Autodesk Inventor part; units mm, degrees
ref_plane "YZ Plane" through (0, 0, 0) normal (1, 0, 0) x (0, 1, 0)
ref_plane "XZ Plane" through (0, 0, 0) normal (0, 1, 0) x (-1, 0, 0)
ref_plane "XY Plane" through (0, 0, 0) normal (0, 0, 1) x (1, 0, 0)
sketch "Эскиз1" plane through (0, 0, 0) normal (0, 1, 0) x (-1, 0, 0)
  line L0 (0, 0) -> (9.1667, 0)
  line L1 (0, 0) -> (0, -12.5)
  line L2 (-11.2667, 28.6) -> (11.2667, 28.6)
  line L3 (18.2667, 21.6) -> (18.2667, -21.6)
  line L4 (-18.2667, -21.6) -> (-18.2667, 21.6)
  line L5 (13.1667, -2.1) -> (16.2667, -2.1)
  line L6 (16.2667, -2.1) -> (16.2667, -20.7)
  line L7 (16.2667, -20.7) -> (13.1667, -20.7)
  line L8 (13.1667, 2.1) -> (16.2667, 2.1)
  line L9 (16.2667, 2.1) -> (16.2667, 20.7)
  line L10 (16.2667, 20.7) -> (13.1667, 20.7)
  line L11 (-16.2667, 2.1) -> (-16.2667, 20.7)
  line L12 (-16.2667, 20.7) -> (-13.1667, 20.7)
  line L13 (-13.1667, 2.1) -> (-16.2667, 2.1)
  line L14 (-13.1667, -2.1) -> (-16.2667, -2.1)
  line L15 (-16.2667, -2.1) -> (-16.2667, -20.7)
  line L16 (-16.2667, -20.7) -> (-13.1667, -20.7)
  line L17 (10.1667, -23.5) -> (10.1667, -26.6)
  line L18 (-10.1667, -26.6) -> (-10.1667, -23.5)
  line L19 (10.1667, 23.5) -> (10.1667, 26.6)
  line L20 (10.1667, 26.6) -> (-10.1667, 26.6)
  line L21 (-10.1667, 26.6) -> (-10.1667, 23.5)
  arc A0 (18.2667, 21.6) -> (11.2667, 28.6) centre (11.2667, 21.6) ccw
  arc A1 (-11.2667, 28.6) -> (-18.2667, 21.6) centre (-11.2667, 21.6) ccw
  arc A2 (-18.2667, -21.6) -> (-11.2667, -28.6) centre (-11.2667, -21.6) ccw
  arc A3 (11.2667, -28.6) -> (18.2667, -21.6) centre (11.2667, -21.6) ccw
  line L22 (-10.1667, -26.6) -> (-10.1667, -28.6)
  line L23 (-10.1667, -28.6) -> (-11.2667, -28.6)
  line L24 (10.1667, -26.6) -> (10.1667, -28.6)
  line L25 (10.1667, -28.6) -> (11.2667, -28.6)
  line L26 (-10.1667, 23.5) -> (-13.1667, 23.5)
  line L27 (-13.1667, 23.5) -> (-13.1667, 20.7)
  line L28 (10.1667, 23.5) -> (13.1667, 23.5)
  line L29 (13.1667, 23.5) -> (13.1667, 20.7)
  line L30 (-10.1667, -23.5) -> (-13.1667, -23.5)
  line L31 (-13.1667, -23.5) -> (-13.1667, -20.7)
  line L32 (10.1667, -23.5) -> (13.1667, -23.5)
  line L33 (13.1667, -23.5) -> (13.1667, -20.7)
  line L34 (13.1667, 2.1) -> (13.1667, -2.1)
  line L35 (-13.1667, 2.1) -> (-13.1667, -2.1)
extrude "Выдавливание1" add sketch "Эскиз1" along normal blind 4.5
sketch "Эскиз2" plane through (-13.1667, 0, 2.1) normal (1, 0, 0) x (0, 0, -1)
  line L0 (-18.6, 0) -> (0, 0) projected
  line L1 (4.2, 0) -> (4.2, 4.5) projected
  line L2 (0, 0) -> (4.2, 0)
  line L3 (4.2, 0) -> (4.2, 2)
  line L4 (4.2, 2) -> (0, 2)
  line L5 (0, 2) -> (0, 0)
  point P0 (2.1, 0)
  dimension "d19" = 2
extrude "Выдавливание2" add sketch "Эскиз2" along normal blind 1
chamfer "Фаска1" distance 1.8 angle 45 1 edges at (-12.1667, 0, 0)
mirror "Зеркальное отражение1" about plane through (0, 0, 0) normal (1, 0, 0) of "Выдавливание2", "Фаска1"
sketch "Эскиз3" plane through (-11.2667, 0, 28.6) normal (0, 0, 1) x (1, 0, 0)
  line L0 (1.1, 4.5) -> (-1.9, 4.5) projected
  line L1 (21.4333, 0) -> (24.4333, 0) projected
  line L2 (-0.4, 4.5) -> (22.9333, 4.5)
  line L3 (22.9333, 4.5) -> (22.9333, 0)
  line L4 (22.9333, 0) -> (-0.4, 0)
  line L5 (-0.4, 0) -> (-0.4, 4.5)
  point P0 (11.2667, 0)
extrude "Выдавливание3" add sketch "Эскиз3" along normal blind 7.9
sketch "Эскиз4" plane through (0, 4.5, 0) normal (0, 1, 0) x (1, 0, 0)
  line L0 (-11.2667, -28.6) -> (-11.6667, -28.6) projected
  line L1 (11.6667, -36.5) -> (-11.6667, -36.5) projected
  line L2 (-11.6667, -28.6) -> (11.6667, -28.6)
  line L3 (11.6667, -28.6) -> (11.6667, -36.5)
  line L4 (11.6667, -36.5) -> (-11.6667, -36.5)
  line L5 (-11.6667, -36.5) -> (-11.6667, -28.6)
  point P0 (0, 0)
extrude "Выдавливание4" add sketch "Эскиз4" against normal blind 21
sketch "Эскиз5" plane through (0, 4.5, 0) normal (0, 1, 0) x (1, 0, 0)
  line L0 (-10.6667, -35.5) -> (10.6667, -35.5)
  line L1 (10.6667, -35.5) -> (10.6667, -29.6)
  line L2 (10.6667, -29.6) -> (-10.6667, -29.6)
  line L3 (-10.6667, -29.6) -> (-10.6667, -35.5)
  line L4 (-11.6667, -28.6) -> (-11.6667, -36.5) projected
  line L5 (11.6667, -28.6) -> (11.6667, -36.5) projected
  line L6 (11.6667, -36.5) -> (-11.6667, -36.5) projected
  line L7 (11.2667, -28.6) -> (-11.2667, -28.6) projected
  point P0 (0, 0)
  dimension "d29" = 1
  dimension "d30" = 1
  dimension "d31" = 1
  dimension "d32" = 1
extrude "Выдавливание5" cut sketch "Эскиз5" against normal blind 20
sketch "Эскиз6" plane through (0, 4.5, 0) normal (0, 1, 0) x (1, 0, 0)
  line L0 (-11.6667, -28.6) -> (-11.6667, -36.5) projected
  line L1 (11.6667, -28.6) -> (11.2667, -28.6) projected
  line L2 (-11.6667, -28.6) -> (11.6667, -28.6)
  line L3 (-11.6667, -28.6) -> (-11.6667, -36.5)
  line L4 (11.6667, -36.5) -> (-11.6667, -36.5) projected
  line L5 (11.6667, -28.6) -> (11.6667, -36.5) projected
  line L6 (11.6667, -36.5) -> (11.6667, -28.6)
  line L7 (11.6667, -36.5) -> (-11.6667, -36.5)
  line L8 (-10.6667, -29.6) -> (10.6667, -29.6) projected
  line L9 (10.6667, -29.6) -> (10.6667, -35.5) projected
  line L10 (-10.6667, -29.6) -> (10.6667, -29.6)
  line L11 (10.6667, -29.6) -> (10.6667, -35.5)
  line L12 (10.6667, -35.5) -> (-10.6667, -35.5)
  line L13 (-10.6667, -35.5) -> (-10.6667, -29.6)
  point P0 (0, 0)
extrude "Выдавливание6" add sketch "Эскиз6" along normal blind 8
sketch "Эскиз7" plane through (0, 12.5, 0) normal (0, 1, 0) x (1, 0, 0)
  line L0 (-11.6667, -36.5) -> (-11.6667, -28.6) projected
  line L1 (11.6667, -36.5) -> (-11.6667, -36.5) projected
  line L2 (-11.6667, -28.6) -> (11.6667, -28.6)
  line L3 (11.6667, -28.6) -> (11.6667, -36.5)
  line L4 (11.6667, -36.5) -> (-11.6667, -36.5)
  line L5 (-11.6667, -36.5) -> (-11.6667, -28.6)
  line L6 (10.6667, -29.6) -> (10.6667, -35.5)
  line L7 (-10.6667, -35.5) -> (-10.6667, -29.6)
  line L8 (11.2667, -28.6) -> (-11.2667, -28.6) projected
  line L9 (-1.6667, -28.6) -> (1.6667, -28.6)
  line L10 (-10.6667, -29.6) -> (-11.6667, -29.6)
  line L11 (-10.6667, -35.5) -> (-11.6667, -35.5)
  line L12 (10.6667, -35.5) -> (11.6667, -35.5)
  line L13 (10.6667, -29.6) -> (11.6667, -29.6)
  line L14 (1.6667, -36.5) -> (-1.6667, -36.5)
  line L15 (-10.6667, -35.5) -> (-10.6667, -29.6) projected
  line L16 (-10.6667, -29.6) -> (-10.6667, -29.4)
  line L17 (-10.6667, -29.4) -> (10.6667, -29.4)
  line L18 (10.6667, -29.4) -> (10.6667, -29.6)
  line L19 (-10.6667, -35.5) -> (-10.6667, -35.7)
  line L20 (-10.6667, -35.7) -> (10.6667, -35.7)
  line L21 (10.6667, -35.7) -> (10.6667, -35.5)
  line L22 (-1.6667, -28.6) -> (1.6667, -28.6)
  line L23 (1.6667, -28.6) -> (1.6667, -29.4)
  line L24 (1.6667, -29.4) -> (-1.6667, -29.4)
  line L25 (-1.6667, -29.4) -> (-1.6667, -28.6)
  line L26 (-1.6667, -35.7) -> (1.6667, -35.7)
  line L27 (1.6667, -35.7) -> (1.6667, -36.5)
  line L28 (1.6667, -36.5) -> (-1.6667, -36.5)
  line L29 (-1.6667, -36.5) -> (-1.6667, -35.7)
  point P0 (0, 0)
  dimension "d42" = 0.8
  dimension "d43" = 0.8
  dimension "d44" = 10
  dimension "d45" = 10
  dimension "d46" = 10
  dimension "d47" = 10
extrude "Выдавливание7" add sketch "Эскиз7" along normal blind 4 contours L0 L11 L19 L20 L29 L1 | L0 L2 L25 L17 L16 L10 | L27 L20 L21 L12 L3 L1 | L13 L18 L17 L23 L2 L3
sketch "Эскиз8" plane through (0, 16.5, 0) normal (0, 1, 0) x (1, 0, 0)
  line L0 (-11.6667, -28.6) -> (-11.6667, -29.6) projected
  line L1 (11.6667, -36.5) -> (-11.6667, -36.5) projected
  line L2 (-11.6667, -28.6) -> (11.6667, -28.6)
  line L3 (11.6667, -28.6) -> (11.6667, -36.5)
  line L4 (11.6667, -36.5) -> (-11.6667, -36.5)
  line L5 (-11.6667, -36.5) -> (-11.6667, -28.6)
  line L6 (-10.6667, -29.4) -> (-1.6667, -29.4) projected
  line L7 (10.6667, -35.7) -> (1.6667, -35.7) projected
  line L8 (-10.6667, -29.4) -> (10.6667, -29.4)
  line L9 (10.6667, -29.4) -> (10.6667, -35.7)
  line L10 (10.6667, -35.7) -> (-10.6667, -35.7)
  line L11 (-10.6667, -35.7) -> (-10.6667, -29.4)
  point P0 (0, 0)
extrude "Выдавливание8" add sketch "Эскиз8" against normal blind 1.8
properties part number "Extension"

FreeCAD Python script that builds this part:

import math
import FreeCAD as App
import Part
import Sketcher

V = App.Vector


def edges_at(feature, points):
    """Names of the edges that pass closest to the given points."""
    edges = feature.Shape.Edges
    near = lambda p: min(range(len(edges)), key=lambda i: edges[i].distToShape(Part.Vertex(*p))[0])
    return sorted({f"Edge{near(p) + 1}" for p in points})

doc = App.newDocument("Part")
body = doc.addObject("PartDesign::Body", "Body")

# Sketch on XZ plane
sketch1 = doc.addObject("Sketcher::SketchObject", "Sketch")
body.addObject(sketch1)
sketch1.AttachmentSupport = (doc.XZ_Plane, [""])
sketch1.MapMode = "FlatFace"
sketch1.addGeometry([
    Part.LineSegment(V(-11.2667, 28.6, 0), V(11.2667, 28.6, 0)),  # 0
    Part.ArcOfCircle(Part.Circle(V(11.2667, 21.6, 0), V(0, 0, 1), 7), math.radians(0), math.radians(90)),  # 1
    Part.LineSegment(V(18.2667, 21.6, 0), V(18.2667, -21.6, 0)),  # 2
    Part.ArcOfCircle(Part.Circle(V(11.2667, -21.6, 0), V(0, 0, 1), 7), math.radians(-90), math.radians(0)),  # 3
    Part.LineSegment(V(11.2667, -28.6, 0), V(10.1667, -28.6, 0)),  # 4
    Part.LineSegment(V(10.1667, -28.6, 0), V(10.1667, -23.5, 0)),  # 5
    Part.LineSegment(V(10.1667, -23.5, 0), V(13.1667, -23.5, 0)),  # 6
    Part.LineSegment(V(13.1667, -23.5, 0), V(13.1667, -20.7, 0)),  # 7
    Part.LineSegment(V(13.1667, -20.7, 0), V(16.2667, -20.7, 0)),  # 8
    Part.LineSegment(V(16.2667, -20.7, 0), V(16.2667, -2.1, 0)),  # 9
    Part.LineSegment(V(16.2667, -2.1, 0), V(13.1667, -2.1, 0)),  # 10
    Part.LineSegment(V(13.1667, -2.1, 0), V(13.1667, 2.1, 0)),  # 11
    Part.LineSegment(V(13.1667, 2.1, 0), V(16.2667, 2.1, 0)),  # 12
    Part.LineSegment(V(16.2667, 2.1, 0), V(16.2667, 20.7, 0)),  # 13
    Part.LineSegment(V(16.2667, 20.7, 0), V(13.1667, 20.7, 0)),  # 14
    Part.LineSegment(V(13.1667, 20.7, 0), V(13.1667, 23.5, 0)),  # 15
    Part.LineSegment(V(13.1667, 23.5, 0), V(10.1667, 23.5, 0)),  # 16
    Part.LineSegment(V(10.1667, 23.5, 0), V(10.1667, 26.6, 0)),  # 17
    Part.LineSegment(V(10.1667, 26.6, 0), V(-10.1667, 26.6, 0)),  # 18
    Part.LineSegment(V(-10.1667, 26.6, 0), V(-10.1667, 23.5, 0)),  # 19
    Part.LineSegment(V(-10.1667, 23.5, 0), V(-13.1667, 23.5, 0)),  # 20
    Part.LineSegment(V(-13.1667, 23.5, 0), V(-13.1667, 20.7, 0)),  # 21
    Part.LineSegment(V(-13.1667, 20.7, 0), V(-16.2667, 20.7, 0)),  # 22
    Part.LineSegment(V(-16.2667, 20.7, 0), V(-16.2667, 2.1, 0)),  # 23
    Part.LineSegment(V(-16.2667, 2.1, 0), V(-13.1667, 2.1, 0)),  # 24
    Part.LineSegment(V(-13.1667, 2.1, 0), V(-13.1667, -2.1, 0)),  # 25
    Part.LineSegment(V(-13.1667, -2.1, 0), V(-16.2667, -2.1, 0)),  # 26
    Part.LineSegment(V(-16.2667, -2.1, 0), V(-16.2667, -20.7, 0)),  # 27
    Part.LineSegment(V(-16.2667, -20.7, 0), V(-13.1667, -20.7, 0)),  # 28
    Part.LineSegment(V(-13.1667, -20.7, 0), V(-13.1667, -23.5, 0)),  # 29
    Part.LineSegment(V(-13.1667, -23.5, 0), V(-10.1667, -23.5, 0)),  # 30
    Part.LineSegment(V(-10.1667, -23.5, 0), V(-10.1667, -28.6, 0)),  # 31
    Part.LineSegment(V(-10.1667, -28.6, 0), V(-11.2667, -28.6, 0)),  # 32
    Part.ArcOfCircle(Part.Circle(V(-11.2667, -21.6, 0), V(0, 0, 1), 7), math.radians(180), math.radians(270)),  # 33
    Part.LineSegment(V(-18.2667, -21.6, 0), V(-18.2667, 21.6, 0)),  # 34
    Part.ArcOfCircle(Part.Circle(V(-11.2667, 21.6, 0), V(0, 0, 1), 7), math.radians(90), math.radians(180)),  # 35
], False)
sketch1.addConstraint([
    Sketcher.Constraint("Tangent", 0, 2, 1, 2),
    Sketcher.Constraint("Tangent", 1, 1, 2, 1),
    Sketcher.Constraint("Tangent", 2, 2, 3, 2),
    Sketcher.Constraint("Tangent", 3, 1, 4, 1),
    Sketcher.Constraint("Coincident", 4, 2, 5, 1),
    Sketcher.Constraint("Coincident", 5, 2, 6, 1),
    Sketcher.Constraint("Coincident", 6, 2, 7, 1),
    Sketcher.Constraint("Coincident", 7, 2, 8, 1),
    Sketcher.Constraint("Coincident", 8, 2, 9, 1),
    Sketcher.Constraint("Coincident", 9, 2, 10, 1),
    Sketcher.Constraint("Coincident", 10, 2, 11, 1),
    Sketcher.Constraint("Coincident", 11, 2, 12, 1),
    Sketcher.Constraint("Coincident", 12, 2, 13, 1),
    Sketcher.Constraint("Coincident", 13, 2, 14, 1),
    Sketcher.Constraint("Coincident", 14, 2, 15, 1),
    Sketcher.Constraint("Coincident", 15, 2, 16, 1),
    Sketcher.Constraint("Coincident", 16, 2, 17, 1),
    Sketcher.Constraint("Coincident", 17, 2, 18, 1),
    Sketcher.Constraint("Coincident", 18, 2, 19, 1),
    Sketcher.Constraint("Coincident", 19, 2, 20, 1),
    Sketcher.Constraint("Coincident", 20, 2, 21, 1),
    Sketcher.Constraint("Coincident", 21, 2, 22, 1),
    Sketcher.Constraint("Coincident", 22, 2, 23, 1),
    Sketcher.Constraint("Coincident", 23, 2, 24, 1),
    Sketcher.Constraint("Coincident", 24, 2, 25, 1),
    Sketcher.Constraint("Coincident", 25, 2, 26, 1),
    Sketcher.Constraint("Coincident", 26, 2, 27, 1),
    Sketcher.Constraint("Coincident", 27, 2, 28, 1),
    Sketcher.Constraint("Coincident", 28, 2, 29, 1),
    Sketcher.Constraint("Coincident", 29, 2, 30, 1),
    Sketcher.Constraint("Coincident", 30, 2, 31, 1),
    Sketcher.Constraint("Coincident", 31, 2, 32, 1),
    Sketcher.Constraint("Tangent", 32, 2, 33, 2),
    Sketcher.Constraint("Tangent", 33, 1, 34, 1),
    Sketcher.Constraint("Tangent", 34, 2, 35, 2),
    Sketcher.Constraint("Tangent", 35, 1, 0, 1),
    Sketcher.Constraint("Horizontal", 0),
    Sketcher.Constraint("Vertical", 2),
    Sketcher.Constraint("Horizontal", 4),
    Sketcher.Constraint("Vertical", 5),
    Sketcher.Constraint("Horizontal", 6),
    Sketcher.Constraint("Vertical", 7),
    Sketcher.Constraint("Horizontal", 8),
    Sketcher.Constraint("Vertical", 9),
    Sketcher.Constraint("Horizontal", 10),
    Sketcher.Constraint("Vertical", 11),
    Sketcher.Constraint("Horizontal", 12),
    Sketcher.Constraint("Vertical", 13),
    Sketcher.Constraint("Horizontal", 14),
    Sketcher.Constraint("Vertical", 15),
    Sketcher.Constraint("Horizontal", 16),
    Sketcher.Constraint("Vertical", 17),
    Sketcher.Constraint("Horizontal", 18),
    Sketcher.Constraint("Vertical", 19),
    Sketcher.Constraint("Horizontal", 20),
    Sketcher.Constraint("Vertical", 21),
    Sketcher.Constraint("Horizontal", 22),
    Sketcher.Constraint("Vertical", 23),
    Sketcher.Constraint("Horizontal", 24),
    Sketcher.Constraint("Vertical", 25),
    Sketcher.Constraint("Horizontal", 26),
    Sketcher.Constraint("Vertical", 27),
    Sketcher.Constraint("Horizontal", 28),
    Sketcher.Constraint("Vertical", 29),
    Sketcher.Constraint("Horizontal", 30),
    Sketcher.Constraint("Vertical", 31),
    Sketcher.Constraint("Horizontal", 32),
    Sketcher.Constraint("Vertical", 34),
    Sketcher.Constraint("Equal", 1, 3),
    Sketcher.Constraint("Equal", 3, 33),
    Sketcher.Constraint("Equal", 33, 35),
    Sketcher.Constraint("Symmetric", 1, 3, 33, 3, -1, 1),
    Sketcher.Constraint("Symmetric", 5, 2, 19, 2, -1, 1),
    Sketcher.Constraint("Symmetric", 7, 2, 21, 2, -1, 1),
    Sketcher.Constraint("Symmetric", 9, 2, 23, 2, -1, 1),
    Sketcher.Constraint("Symmetric", 11, 2, 25, 2, -1, 1),
    Sketcher.Constraint("Symmetric", 13, 2, 27, 2, -1, 1),
    Sketcher.Constraint("Symmetric", 15, 2, 29, 2, -1, 1),
    Sketcher.Constraint("Symmetric", 16, 2, 19, 2, -2),
    Sketcher.Constraint("Symmetric", 14, 2, 21, 2, -2),
    Sketcher.Constraint("Symmetric", 12, 2, 23, 2, -2),
    Sketcher.Constraint("Symmetric", 4, 2, 31, 2, -2),
    Sketcher.Constraint("Vertical", 7, 2, 10, 2),
    Sketcher.Constraint("Equal", 28, 17),
    Sketcher.Constraint("Radius", 1, 7.0),
    Sketcher.Constraint("DistanceX", 6, 1, 6, 2, 3.0),
    Sketcher.Constraint("DistanceX", 4, 2, 4, 1, 1.1),
    Sketcher.Constraint("DistanceX", 8, 1, 8, 2, 3.1),
    Sketcher.Constraint("DistanceY", 2, 2, 2, 1, 43.2),
    Sketcher.Constraint("DistanceY", 5, 1, 5, 2, 5.1),
    Sketcher.Constraint("DistanceY", 7, 1, 7, 2, 2.8),
    Sketcher.Constraint("DistanceY", 9, 1, 9, 2, 18.6),
    Sketcher.Constraint("DistanceX", 0, 1, 0, 2, 22.5334),
])
pad1 = doc.addObject("PartDesign::Pad", "Pad")
body.addObject(pad1)
pad1.Profile = sketch1
pad1.Length = 4.5
pad1.Reversed = True

# Sketch on YZ plane
sketch2 = doc.addObject("Sketcher::SketchObject", "Sketch001")
body.addObject(sketch2)
sketch2.AttachmentSupport = (doc.YZ_Plane, [""])
sketch2.MapMode = "FlatFace"
sketch2.AttachmentOffset = App.Placement(V(0, 0, -13.1667), App.Rotation())
sketch2.addGeometry([
    Part.LineSegment(V(0, 2.1, 0), V(0, -2.1, 0)),
    Part.LineSegment(V(0, -2.1, 0), V(2, -2.1, 0)),
    Part.LineSegment(V(2, -2.1, 0), V(2, 2.1, 0)),
    Part.LineSegment(V(2, 2.1, 0), V(0, 2.1, 0)),
], False)
sketch2.addConstraint([
    Sketcher.Constraint("Coincident", 0, 2, 1, 1),
    Sketcher.Constraint("Coincident", 1, 2, 2, 1),
    Sketcher.Constraint("Coincident", 2, 2, 3, 1),
    Sketcher.Constraint("Coincident", 3, 2, 0, 1),
    Sketcher.Constraint("Vertical", 0),
    Sketcher.Constraint("Horizontal", 1),
    Sketcher.Constraint("Vertical", 2),
    Sketcher.Constraint("Horizontal", 3),
    Sketcher.Constraint("Symmetric", 0, 2, 3, 2, -1, 1),
    Sketcher.Constraint("DistanceX", 1, 1, 1, 2, 2.0),
    Sketcher.Constraint("DistanceY", 0, 2, 0, 1, 4.2),
])
pad2 = doc.addObject("PartDesign::Pad", "Pad001")
body.addObject(pad2)
pad2.Profile = sketch2
pad2.Length = 1
doc.recompute()

chamfer = doc.addObject("PartDesign::Chamfer", "Chamfer")
body.addObject(chamfer)
chamfer.Base = (pad2, edges_at(pad2, [(-12.167, 0, 0)]))
chamfer.Size = 1.8
doc.recompute()

mirrored = doc.addObject("PartDesign::Mirrored", "Mirrored")
body.addObject(mirrored)
mirrored.Originals = [pad2, chamfer]
mirrored.MirrorPlane = (doc.YZ_Plane, [""])
body.Tip = mirrored

# Sketch on XY plane
sketch3 = doc.addObject("Sketcher::SketchObject", "Sketch002")
body.addObject(sketch3)
sketch3.AttachmentSupport = (doc.XY_Plane, [""])
sketch3.MapMode = "FlatFace"
sketch3.AttachmentOffset = App.Placement(V(0, 0, 28.6), App.Rotation())
sketch3.addGeometry([
    Part.LineSegment(V(11.6666, 4.5, 0), V(-11.6667, 4.5, 0)),
    Part.LineSegment(V(-11.6667, 4.5, 0), V(-11.6667, 0, 0)),
    Part.LineSegment(V(-11.6667, 0, 0), V(11.6666, 0, 0)),
    Part.LineSegment(V(11.6666, 0, 0), V(11.6666, 4.5, 0)),
], False)
sketch3.addConstraint([
    Sketcher.Constraint("Coincident", 0, 2, 1, 1),
    Sketcher.Constraint("Coincident", 1, 2, 2, 1),
    Sketcher.Constraint("Coincident", 2, 2, 3, 1),
    Sketcher.Constraint("Coincident", 3, 2, 0, 1),
    Sketcher.Constraint("Horizontal", 0),
    Sketcher.Constraint("Vertical", 1),
    Sketcher.Constraint("Horizontal", 2),
    Sketcher.Constraint("Vertical", 3),
    Sketcher.Constraint("Symmetric", 1, 2, 2, 2, -1, 1),
    Sketcher.Constraint("DistanceY", 1, 2, 1, 1, 4.5),
    Sketcher.Constraint("DistanceX", 0, 2, 0, 1, 23.3333),
])
pad3 = doc.addObject("PartDesign::Pad", "Pad002")
body.addObject(pad3)
pad3.Profile = sketch3
pad3.Length = 7.9

# Sketch on XZ plane
sketch4 = doc.addObject("Sketcher::SketchObject", "Sketch003")
body.addObject(sketch4)
sketch4.AttachmentSupport = (doc.XZ_Plane, [""])
sketch4.MapMode = "FlatFace"
sketch4.AttachmentOffset = App.Placement(V(0, 0, -4.5), App.Rotation())
sketch4.addGeometry([
    Part.LineSegment(V(11.6667, 28.6, 0), V(-11.6667, 28.6, 0)),
    Part.LineSegment(V(-11.6667, 28.6, 0), V(-11.6667, 36.5, 0)),
    Part.LineSegment(V(-11.6667, 36.5, 0), V(11.6667, 36.5, 0)),
    Part.LineSegment(V(11.6667, 36.5, 0), V(11.6667, 28.6, 0)),
], False)
sketch4.addConstraint([
    Sketcher.Constraint("Coincident", 0, 2, 1, 1),
    Sketcher.Constraint("Coincident", 1, 2, 2, 1),
    Sketcher.Constraint("Coincident", 2, 2, 3, 1),
    Sketcher.Constraint("Coincident", 3, 2, 0, 1),
    Sketcher.Constraint("Horizontal", 0),
    Sketcher.Constraint("Vertical", 1),
    Sketcher.Constraint("Horizontal", 2),
    Sketcher.Constraint("Vertical", 3),
    Sketcher.Constraint("DistanceY", 1, 1, 1, 2, 7.9),
    Sketcher.Constraint("DistanceY", -1, 1, 0, 2, 28.6),
    Sketcher.Constraint("DistanceX", 0, 2, 0, 1, 23.3334),
    Sketcher.Constraint("DistanceX", 0, 2, -1, 1, 11.6667),
])
pad4 = doc.addObject("PartDesign::Pad", "Pad003")
body.addObject(pad4)
pad4.Profile = sketch4
pad4.Length = 21

# Sketch on XZ plane
sketch5 = doc.addObject("Sketcher::SketchObject", "Sketch004")
body.addObject(sketch5)
sketch5.AttachmentSupport = (doc.XZ_Plane, [""])
sketch5.MapMode = "FlatFace"
sketch5.AttachmentOffset = App.Placement(V(0, 0, -4.5), App.Rotation())
sketch5.addGeometry([
    Part.LineSegment(V(-10.6667, 29.6, 0), V(-10.6667, 35.5, 0)),
    Part.LineSegment(V(-10.6667, 35.5, 0), V(10.6667, 35.5, 0)),
    Part.LineSegment(V(10.6667, 35.5, 0), V(10.6667, 29.6, 0)),
    Part.LineSegment(V(10.6667, 29.6, 0), V(-10.6667, 29.6, 0)),
], False)
sketch5.addConstraint([
    Sketcher.Constraint("Coincident", 0, 2, 1, 1),
    Sketcher.Constraint("Coincident", 1, 2, 2, 1),
    Sketcher.Constraint("Coincident", 2, 2, 3, 1),
    Sketcher.Constraint("Coincident", 3, 2, 0, 1),
    Sketcher.Constraint("Vertical", 0),
    Sketcher.Constraint("Horizontal", 1),
    Sketcher.Constraint("Vertical", 2),
    Sketcher.Constraint("Horizontal", 3),
    Sketcher.Constraint("DistanceY", 0, 1, 0, 2, 5.9),
    Sketcher.Constraint("DistanceY", -1, 1, 0, 2, 35.5),
    Sketcher.Constraint("DistanceX", 1, 1, 1, 2, 21.3334),
    Sketcher.Constraint("DistanceX", 0, 2, -1, 1, 10.6667),
])
pocket1 = doc.addObject("PartDesign::Pocket", "Pocket")
body.addObject(pocket1)
pocket1.Profile = sketch5
pocket1.Length = 20
pocket1.Reversed = True

# Sketch on XZ plane
sketch6 = doc.addObject("Sketcher::SketchObject", "Sketch005")
body.addObject(sketch6)
sketch6.AttachmentSupport = (doc.XZ_Plane, [""])
sketch6.MapMode = "FlatFace"
sketch6.AttachmentOffset = App.Placement(V(0, 0, -4.5), App.Rotation())
sketch6.addGeometry([
    Part.LineSegment(V(11.6667, 28.6, 0), V(-11.6667, 28.6, 0)),  # 0
    Part.LineSegment(V(-11.6667, 28.6, 0), V(-11.6667, 36.5, 0)),  # 1
    Part.LineSegment(V(-11.6667, 36.5, 0), V(11.6667, 36.5, 0)),  # 2
    Part.LineSegment(V(11.6667, 36.5, 0), V(11.6667, 28.6, 0)),  # 3
    Part.LineSegment(V(-10.6667, 35.5, 0), V(-10.6667, 29.6, 0)),  # 4
    Part.LineSegment(V(-10.6667, 29.6, 0), V(10.6667, 29.6, 0)),  # 5
    Part.LineSegment(V(10.6667, 29.6, 0), V(10.6667, 35.5, 0)),  # 6
    Part.LineSegment(V(10.6667, 35.5, 0), V(-10.6667, 35.5, 0)),  # 7
], False)
sketch6.addConstraint([
    Sketcher.Constraint("Coincident", 0, 2, 1, 1),
    Sketcher.Constraint("Coincident", 1, 2, 2, 1),
    Sketcher.Constraint("Coincident", 2, 2, 3, 1),
    Sketcher.Constraint("Coincident", 3, 2, 0, 1),
    Sketcher.Constraint("Coincident", 4, 2, 5, 1),
    Sketcher.Constraint("Coincident", 5, 2, 6, 1),
    Sketcher.Constraint("Coincident", 6, 2, 7, 1),
    Sketcher.Constraint("Coincident", 7, 2, 4, 1),
    Sketcher.Constraint("Horizontal", 0),
    Sketcher.Constraint("Vertical", 1),
    Sketcher.Constraint("Horizontal", 2),
    Sketcher.Constraint("Vertical", 3),
    Sketcher.Constraint("Vertical", 4),
    Sketcher.Constraint("Horizontal", 5),
    Sketcher.Constraint("Vertical", 6),
    Sketcher.Constraint("Horizontal", 7),
    Sketcher.Constraint("DistanceY", 1, 1, 1, 2, 7.9),
    Sketcher.Constraint("DistanceY", 4, 2, 4, 1, 5.9),
    Sketcher.Constraint("DistanceX", 0, 2, 4, 2, 1.0),
    Sketcher.Constraint("DistanceY", 0, 2, 4, 2, 1.0),
    Sketcher.Constraint("DistanceX", 5, 2, 3, 2, 1.0),
    Sketcher.Constraint("DistanceY", -1, 1, 0, 2, 28.6),
    Sketcher.Constraint("DistanceX", 0, 2, 0, 1, 23.3334),
    Sketcher.Constraint("DistanceX", 0, 2, -1, 1, 11.6667),
])
pad5 = doc.addObject("PartDesign::Pad", "Pad004")
body.addObject(pad5)
pad5.Profile = sketch6
pad5.Length = 8
pad5.Reversed = True

# Sketch on XZ plane
sketch7 = doc.addObject("Sketcher::SketchObject", "Sketch006")
body.addObject(sketch7)
sketch7.AttachmentSupport = (doc.XZ_Plane, [""])
sketch7.MapMode = "FlatFace"
sketch7.AttachmentOffset = App.Placement(V(0, 0, -12.5), App.Rotation())
sketch7.addGeometry([
    Part.LineSegment(V(-11.6667, 35.5, 0), V(-11.6667, 36.5, 0)),  # 0
    Part.LineSegment(V(-11.6667, 36.5, 0), V(-1.6667, 36.5, 0)),  # 1
    Part.LineSegment(V(-1.6667, 36.5, 0), V(-1.6667, 35.7, 0)),  # 2
    Part.LineSegment(V(-1.6667, 35.7, 0), V(-10.6667, 35.7, 0)),  # 3
    Part.LineSegment(V(-10.6667, 35.7, 0), V(-10.6667, 35.5, 0)),  # 4
    Part.LineSegment(V(-10.6667, 35.5, 0), V(-11.6667, 35.5, 0)),  # 5
    Part.LineSegment(V(-11.6667, 28.6, 0), V(-11.6667, 29.6, 0)),  # 6
    Part.LineSegment(V(-11.6667, 29.6, 0), V(-10.6667, 29.6, 0)),  # 7
    Part.LineSegment(V(-10.6667, 29.6, 0), V(-10.6667, 29.4, 0)),  # 8
    Part.LineSegment(V(-10.6667, 29.4, 0), V(-1.6667, 29.4, 0)),  # 9
    Part.LineSegment(V(-1.6667, 29.4, 0), V(-1.6667, 28.6, 0)),  # 10
    Part.LineSegment(V(-1.6667, 28.6, 0), V(-11.6667, 28.6, 0)),  # 11
    Part.LineSegment(V(1.6667, 35.7, 0), V(1.6667, 36.5, 0)),  # 12
    Part.LineSegment(V(1.6667, 36.5, 0), V(11.6667, 36.5, 0)),  # 13
    Part.LineSegment(V(11.6667, 36.5, 0), V(11.6667, 35.5, 0)),  # 14
    Part.LineSegment(V(11.6667, 35.5, 0), V(10.6667, 35.5, 0)),  # 15
    Part.LineSegment(V(10.6667, 35.5, 0), V(10.6667, 35.7, 0)),  # 16
    Part.LineSegment(V(10.6667, 35.7, 0), V(1.6667, 35.7, 0)),  # 17
    Part.LineSegment(V(10.6667, 29.6, 0), V(11.6667, 29.6, 0)),  # 18
    Part.LineSegment(V(11.6667, 29.6, 0), V(11.6667, 28.6, 0)),  # 19
    Part.LineSegment(V(11.6667, 28.6, 0), V(1.6667, 28.6, 0)),  # 20
    Part.LineSegment(V(1.6667, 28.6, 0), V(1.6667, 29.4, 0)),  # 21
    Part.LineSegment(V(1.6667, 29.4, 0), V(10.6667, 29.4, 0)),  # 22
    Part.LineSegment(V(10.6667, 29.4, 0), V(10.6667, 29.6, 0)),  # 23
], False)
sketch7.addConstraint([
    Sketcher.Constraint("Coincident", 0, 2, 1, 1),
    Sketcher.Constraint("Coincident", 1, 2, 2, 1),
    Sketcher.Constraint("Coincident", 2, 2, 3, 1),
    Sketcher.Constraint("Coincident", 3, 2, 4, 1),
    Sketcher.Constraint("Coincident", 4, 2, 5, 1),
    Sketcher.Constraint("Coincident", 5, 2, 0, 1),
    Sketcher.Constraint("Coincident", 6, 2, 7, 1),
    Sketcher.Constraint("Coincident", 7, 2, 8, 1),
    Sketcher.Constraint("Coincident", 8, 2, 9, 1),
    Sketcher.Constraint("Coincident", 9, 2, 10, 1),
    Sketcher.Constraint("Coincident", 10, 2, 11, 1),
    Sketcher.Constraint("Coincident", 11, 2, 6, 1),
    Sketcher.Constraint("Coincident", 12, 2, 13, 1),
    Sketcher.Constraint("Coincident", 13, 2, 14, 1),
    Sketcher.Constraint("Coincident", 14, 2, 15, 1),
    Sketcher.Constraint("Coincident", 15, 2, 16, 1),
    Sketcher.Constraint("Coincident", 16, 2, 17, 1),
    Sketcher.Constraint("Coincident", 17, 2, 12, 1),
    Sketcher.Constraint("Coincident", 18, 2, 19, 1),
    Sketcher.Constraint("Coincident", 19, 2, 20, 1),
    Sketcher.Constraint("Coincident", 20, 2, 21, 1),
    Sketcher.Constraint("Coincident", 21, 2, 22, 1),
    Sketcher.Constraint("Coincident", 22, 2, 23, 1),
    Sketcher.Constraint("Coincident", 23, 2, 18, 1),
    Sketcher.Constraint("Vertical", 0),
    Sketcher.Constraint("Horizontal", 1),
    Sketcher.Constraint("Vertical", 2),
    Sketcher.Constraint("Horizontal", 3),
    Sketcher.Constraint("Vertical", 4),
    Sketcher.Constraint("Horizontal", 5),
    Sketcher.Constraint("Vertical", 6),
    Sketcher.Constraint("Horizontal", 7),
    Sketcher.Constraint("Vertical", 8),
    Sketcher.Constraint("Horizontal", 9),
    Sketcher.Constraint("Vertical", 10),
    Sketcher.Constraint("Horizontal", 11),
    Sketcher.Constraint("Vertical", 12),
    Sketcher.Constraint("Horizontal", 13),
    Sketcher.Constraint("Vertical", 14),
    Sketcher.Constraint("Horizontal", 15),
    Sketcher.Constraint("Vertical", 16),
    Sketcher.Constraint("Horizontal", 17),
    Sketcher.Constraint("Horizontal", 18),
    Sketcher.Constraint("Vertical", 19),
    Sketcher.Constraint("Horizontal", 20),
    Sketcher.Constraint("Vertical", 21),
    Sketcher.Constraint("Horizontal", 22),
    Sketcher.Constraint("Vertical", 23),
    Sketcher.Constraint("Symmetric", 1, 2, 12, 2, -2),
    Sketcher.Constraint("Symmetric", 5, 2, 14, 2, -2),
    Sketcher.Constraint("Symmetric", 3, 2, 16, 2, -2),
    Sketcher.Constraint("Symmetric", 6, 2, 18, 2, -2),
    Sketcher.Constraint("Symmetric", 10, 2, 20, 2, -2),
    Sketcher.Constraint("Symmetric", 8, 2, 22, 2, -2),
    Sketcher.Constraint("Vertical", 5, 2, 6, 2),
    Sketcher.Constraint("Vertical", 4, 2, 7, 2),
    Sketcher.Constraint("Vertical", 2, 2, 9, 2),
    Sketcher.Constraint("Equal", 18, 0),
    Sketcher.Constraint("Equal", 0, 6),
    Sketcher.Constraint("Equal", 4, 8),
    Sketcher.Constraint("DistanceX", 1, 1, 1, 2, 10.0),
    Sketcher.Constraint("DistanceY", 2, 2, 2, 1, 0.8),
    Sketcher.Constraint("DistanceX", 3, 2, 3, 1, 9.0),
    Sketcher.Constraint("DistanceY", -1, 1, 0, 2, 36.5),
    Sketcher.Constraint("DistanceY", -1, 1, 6, 2, 29.6),
    Sketcher.Constraint("DistanceX", 0, 2, -1, 1, 11.6667),
])
pad6 = doc.addObject("PartDesign::Pad", "Pad005")
body.addObject(pad6)
pad6.Profile = sketch7
pad6.Length = 4
pad6.Reversed = True

# Sketch on XZ plane
sketch8 = doc.addObject("Sketcher::SketchObject", "Sketch007")
body.addObject(sketch8)
sketch8.AttachmentSupport = (doc.XZ_Plane, [""])
sketch8.MapMode = "FlatFace"
sketch8.AttachmentOffset = App.Placement(V(0, 0, -16.5), App.Rotation())
sketch8.addGeometry([
    Part.LineSegment(V(11.6667, 28.6, 0), V(-11.6667, 28.6, 0)),  # 0
    Part.LineSegment(V(-11.6667, 28.6, 0), V(-11.6667, 36.5, 0)),  # 1
    Part.LineSegment(V(-11.6667, 36.5, 0), V(11.6667, 36.5, 0)),  # 2
    Part.LineSegment(V(11.6667, 36.5, 0), V(11.6667, 28.6, 0)),  # 3
    Part.LineSegment(V(-10.6667, 35.7, 0), V(-10.6667, 29.4, 0)),  # 4
    Part.LineSegment(V(-10.6667, 29.4, 0), V(10.6667, 29.4, 0)),  # 5
    Part.LineSegment(V(10.6667, 29.4, 0), V(10.6667, 35.7, 0)),  # 6
    Part.LineSegment(V(10.6667, 35.7, 0), V(-10.6667, 35.7, 0)),  # 7
], False)
sketch8.addConstraint([
    Sketcher.Constraint("Coincident", 0, 2, 1, 1),
    Sketcher.Constraint("Coincident", 1, 2, 2, 1),
    Sketcher.Constraint("Coincident", 2, 2, 3, 1),
    Sketcher.Constraint("Coincident", 3, 2, 0, 1),
    Sketcher.Constraint("Coincident", 4, 2, 5, 1),
    Sketcher.Constraint("Coincident", 5, 2, 6, 1),
    Sketcher.Constraint("Coincident", 6, 2, 7, 1),
    Sketcher.Constraint("Coincident", 7, 2, 4, 1),
    Sketcher.Constraint("Horizontal", 0),
    Sketcher.Constraint("Vertical", 1),
    Sketcher.Constraint("Horizontal", 2),
    Sketcher.Constraint("Vertical", 3),
    Sketcher.Constraint("Vertical", 4),
    Sketcher.Constraint("Horizontal", 5),
    Sketcher.Constraint("Vertical", 6),
    Sketcher.Constraint("Horizontal", 7),
    Sketcher.Constraint("DistanceY", 1, 1, 1, 2, 7.9),
    Sketcher.Constraint("DistanceY", 4, 2, 4, 1, 6.3),
    Sketcher.Constraint("DistanceX", 0, 2, 4, 2, 1.0),
    Sketcher.Constraint("DistanceX", 5, 2, 3, 2, 1.0),
    Sketcher.Constraint("DistanceY", -1, 1, 0, 2, 28.6),
    Sketcher.Constraint("DistanceY", -1, 1, 4, 2, 29.4),
    Sketcher.Constraint("DistanceX", 0, 2, 0, 1, 23.3334),
    Sketcher.Constraint("DistanceX", 0, 2, -1, 1, 11.6667),
])
pad7 = doc.addObject("PartDesign::Pad", "Pad006")
body.addObject(pad7)
pad7.Profile = sketch8
pad7.Length = 1.8

doc.recompute()
